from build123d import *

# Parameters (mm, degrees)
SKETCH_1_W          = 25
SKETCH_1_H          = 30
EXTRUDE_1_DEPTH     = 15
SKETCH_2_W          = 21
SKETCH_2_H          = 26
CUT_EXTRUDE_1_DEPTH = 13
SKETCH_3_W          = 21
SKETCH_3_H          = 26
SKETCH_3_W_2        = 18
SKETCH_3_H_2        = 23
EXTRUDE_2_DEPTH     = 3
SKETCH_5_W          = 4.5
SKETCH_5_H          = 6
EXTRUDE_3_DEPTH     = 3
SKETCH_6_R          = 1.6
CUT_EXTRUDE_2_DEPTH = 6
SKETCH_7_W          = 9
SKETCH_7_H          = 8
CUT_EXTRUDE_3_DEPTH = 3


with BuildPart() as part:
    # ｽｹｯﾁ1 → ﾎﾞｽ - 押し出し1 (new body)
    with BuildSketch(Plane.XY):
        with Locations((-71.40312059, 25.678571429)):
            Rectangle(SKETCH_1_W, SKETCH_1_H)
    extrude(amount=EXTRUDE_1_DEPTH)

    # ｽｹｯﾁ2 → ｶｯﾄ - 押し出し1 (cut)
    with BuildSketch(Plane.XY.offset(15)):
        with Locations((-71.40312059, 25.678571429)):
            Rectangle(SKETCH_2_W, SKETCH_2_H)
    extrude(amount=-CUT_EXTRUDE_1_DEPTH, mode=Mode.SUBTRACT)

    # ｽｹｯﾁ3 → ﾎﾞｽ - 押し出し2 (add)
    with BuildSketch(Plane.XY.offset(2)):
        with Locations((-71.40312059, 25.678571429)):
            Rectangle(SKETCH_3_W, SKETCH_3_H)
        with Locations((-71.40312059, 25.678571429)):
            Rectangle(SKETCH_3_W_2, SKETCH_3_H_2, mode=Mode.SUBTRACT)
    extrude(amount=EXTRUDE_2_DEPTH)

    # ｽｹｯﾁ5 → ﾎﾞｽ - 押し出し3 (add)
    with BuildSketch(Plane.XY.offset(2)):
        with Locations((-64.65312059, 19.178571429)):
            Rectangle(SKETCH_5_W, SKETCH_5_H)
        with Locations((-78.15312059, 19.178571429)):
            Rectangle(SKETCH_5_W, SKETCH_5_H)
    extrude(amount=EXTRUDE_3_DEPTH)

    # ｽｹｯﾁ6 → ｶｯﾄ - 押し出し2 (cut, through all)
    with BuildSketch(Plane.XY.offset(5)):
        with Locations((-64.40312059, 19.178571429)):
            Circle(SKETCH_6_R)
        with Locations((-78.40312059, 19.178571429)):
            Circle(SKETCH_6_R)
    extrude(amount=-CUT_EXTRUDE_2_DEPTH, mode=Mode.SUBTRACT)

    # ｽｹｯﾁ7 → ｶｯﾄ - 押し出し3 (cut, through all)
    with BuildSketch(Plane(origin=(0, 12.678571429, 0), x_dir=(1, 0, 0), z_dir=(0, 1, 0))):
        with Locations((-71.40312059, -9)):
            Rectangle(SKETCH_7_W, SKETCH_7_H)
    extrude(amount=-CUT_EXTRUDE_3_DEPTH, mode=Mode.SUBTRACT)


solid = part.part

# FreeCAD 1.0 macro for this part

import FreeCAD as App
import Part
import Sketcher


def add_polygon(sketch, points):
    """Adds a closed chain of lines whose ends are joined by coincident constraints."""
    first, n = sketch.GeometryCount, len(points)
    for a, b in zip(points, points[1:] + points[:1]):
        sketch.addGeometry(Part.LineSegment(App.Vector(*a, 0), App.Vector(*b, 0)), False)
    for i in range(n):
        sketch.addConstraint(Sketcher.Constraint("Coincident", first + i, 2, first + (i + 1) % n, 1))

doc = App.newDocument("Part")
body = doc.addObject("PartDesign::Body", "Body")

# Sketch on XY plane
sketch1 = doc.addObject("Sketcher::SketchObject", "Sketch")
body.addObject(sketch1)
sketch1.AttachmentSupport = (doc.XY_Plane, [""])
sketch1.MapMode = "FlatFace"
add_polygon(sketch1, [(-84, 41), (-84, 11), (-59, 11), (-59, 41)])  # lines 0-3
sketch1.addConstraint([
    Sketcher.Constraint("Vertical", 0),
    Sketcher.Constraint("Horizontal", 1),
    Sketcher.Constraint("Vertical", 2),
    Sketcher.Constraint("Horizontal", 3),
    Sketcher.Constraint("DistanceX", 1, 1, 1, 2, 25.0),
    Sketcher.Constraint("DistanceY", 0, 2, 0, 1, 30.0),
    Sketcher.Constraint("DistanceX", 0, 2, -1, 1, 83.903121),
    Sketcher.Constraint("DistanceY", -1, 1, 0, 2, 10.678571),
])
pad1 = doc.addObject("PartDesign::Pad", "Pad")
body.addObject(pad1)
pad1.Profile = sketch1
pad1.Length = 15

# Sketch on XY plane
sketch2 = doc.addObject("Sketcher::SketchObject", "Sketch001")
body.addObject(sketch2)
sketch2.AttachmentSupport = (doc.XY_Plane, [""])
sketch2.MapMode = "FlatFace"
sketch2.AttachmentOffset = App.Placement(App.Vector(0, 0, 15), App.Rotation())
add_polygon(sketch2, [(-82, 39), (-82, 13), (-61, 13), (-61, 39)])  # lines 0-3
sketch2.addConstraint([
    Sketcher.Constraint("Vertical", 0),
    Sketcher.Constraint("Horizontal", 1),
    Sketcher.Constraint("Vertical", 2),
    Sketcher.Constraint("Horizontal", 3),
    Sketcher.Constraint("DistanceX", 1, 1, 1, 2, 21.0),
    Sketcher.Constraint("DistanceY", 0, 2, 0, 1, 26.0),
    Sketcher.Constraint("DistanceX", 0, 2, -1, 1, 81.903121),
    Sketcher.Constraint("DistanceY", -1, 1, 0, 2, 12.678571),
])
pocket1 = doc.addObject("PartDesign::Pocket", "Pocket")
body.addObject(pocket1)
pocket1.Profile = sketch2
pocket1.Length = 13

# Sketch on XY plane
sketch3 = doc.addObject("Sketcher::SketchObject", "Sketch002")
body.addObject(sketch3)
sketch3.AttachmentSupport = (doc.XY_Plane, [""])
sketch3.MapMode = "FlatFace"
sketch3.AttachmentOffset = App.Placement(App.Vector(0, 0, 2), App.Rotation())
add_polygon(sketch3, [(-82, 39), (-82, 13), (-61, 13), (-61, 39)])  # lines 0-3
add_polygon(sketch3, [(-62, 14), (-80, 14), (-80, 37), (-62, 37)])  # lines 4-7
sketch3.addConstraint([
    Sketcher.Constraint("Vertical", 0),
    Sketcher.Constraint("Horizontal", 1),
    Sketcher.Constraint("Vertical", 2),
    Sketcher.Constraint("Horizontal", 3),
    Sketcher.Constraint("Horizontal", 4),
    Sketcher.Constraint("Vertical", 5),
    Sketcher.Constraint("Horizontal", 6),
    Sketcher.Constraint("Vertical", 7),
    Sketcher.Constraint("DistanceX", 1, 1, 1, 2, 21.0),
    Sketcher.Constraint("DistanceX", 4, 2, 4, 1, 18.0),
    Sketcher.Constraint("DistanceY", 0, 2, 0, 1, 26.0),
    Sketcher.Constraint("DistanceY", 5, 1, 5, 2, 23.0),
    Sketcher.Constraint("DistanceX", 0, 2, 4, 2, 1.5),
    Sketcher.Constraint("DistanceY", 0, 2, 4, 2, 1.5),
    Sketcher.Constraint("DistanceX", 0, 2, -1, 1, 81.903121),
    Sketcher.Constraint("DistanceY", -1, 1, 0, 2, 12.678571),
])
pad2 = doc.addObject("PartDesign::Pad", "Pad001")
body.addObject(pad2)
pad2.Profile = sketch3
pad2.Length = 3

# Sketch on XY plane
sketch4 = doc.addObject("Sketcher::SketchObject", "Sketch003")
body.addObject(sketch4)
sketch4.AttachmentSupport = (doc.XY_Plane, [""])
sketch4.MapMode = "FlatFace"
sketch4.AttachmentOffset = App.Placement(App.Vector(0, 0, 2), App.Rotation())
add_polygon(sketch4, [(-66.9, 22.2), (-66.9, 16.2), (-62.4, 16.2), (-62.4, 22.2)])  # lines 0-3
add_polygon(sketch4, [(-80.4, 22.2), (-80.4, 16.2), (-75.9, 16.2), (-75.9, 22.2)])  # lines 4-7
sketch4.addConstraint([
    Sketcher.Constraint("Vertical", 0),
    Sketcher.Constraint("Horizontal", 1),
    Sketcher.Constraint("Vertical", 2),
    Sketcher.Constraint("Horizontal", 3),
    Sketcher.Constraint("Vertical", 4),
    Sketcher.Constraint("Horizontal", 5),
    Sketcher.Constraint("Vertical", 6),
    Sketcher.Constraint("Horizontal", 7),
    Sketcher.Constraint("Horizontal", 1, 2, 4, 2),
    Sketcher.Constraint("Horizontal", 3, 2, 6, 2),
    Sketcher.Constraint("Equal", 3, 5),
    Sketcher.Constraint("DistanceY", 0, 2, 0, 1, 6.0),
    Sketcher.Constraint("DistanceX", 1, 1, 1, 2, 4.5),
    Sketcher.Constraint("DistanceX", 4, 2, 1, 2, 18.0),
    Sketcher.Constraint("DistanceX", 0, 2, -1, 1, 66.903121),
    Sketcher.Constraint("DistanceY", -1, 1, 0, 2, 16.178571),
])
pad3 = doc.addObject("PartDesign::Pad", "Pad002")
body.addObject(pad3)
pad3.Profile = sketch4
pad3.Length = 3

# Sketch on XY plane
sketch5 = doc.addObject("Sketcher::SketchObject", "Sketch004")
body.addObject(sketch5)
sketch5.AttachmentSupport = (doc.XY_Plane, [""])
sketch5.MapMode = "FlatFace"
sketch5.AttachmentOffset = App.Placement(App.Vector(0, 0, 5), App.Rotation())
sketch5.addGeometry([
    Part.Circle(App.Vector(-64.4, 19.2, 0), App.Vector(0, 0, 1), 1.6),
    Part.Circle(App.Vector(-78.4, 19.2, 0), App.Vector(0, 0, 1), 1.6),
], False)
sketch5.addConstraint([
    Sketcher.Constraint("Equal", 0, 1),
    Sketcher.Constraint("Horizontal", 0, 3, 1, 3),
    Sketcher.Constraint("Diameter", 0, 3.2),
    Sketcher.Constraint("DistanceX", 1, 3, 0, 3, 14.0),
    Sketcher.Constraint("DistanceX", 0, 3, -1, 1, 64.403121),
    Sketcher.Constraint("DistanceY", -1, 1, 0, 3, 19.178571),
])
pocket2 = doc.addObject("PartDesign::Pocket", "Pocket001")
body.addObject(pocket2)
pocket2.Profile = sketch5
pocket2.Type = "ThroughAll"

# Sketch on XZ plane
sketch6 = doc.addObject("Sketcher::SketchObject", "Sketch005")
body.addObject(sketch6)
sketch6.AttachmentSupport = (doc.XZ_Plane, [""])
sketch6.MapMode = "FlatFace"
sketch6.AttachmentOffset = App.Placement(App.Vector(0, 0, -12.678571), App.Rotation())
add_polygon(sketch6, [(-76, 5), (-76, 13), (-67, 13), (-67, 5)])  # lines 0-3
sketch6.addConstraint([
    Sketcher.Constraint("Vertical", 0),
    Sketcher.Constraint("Horizontal", 1),
    Sketcher.Constraint("Vertical", 2),
    Sketcher.Constraint("Horizontal", 3),
    Sketcher.Constraint("DistanceX", 1, 1, 1, 2, 9.0),
    Sketcher.Constraint("DistanceY", 0, 1, 0, 2, 8.0),
    Sketcher.Constraint("DistanceY", -1, 1, 0, 2, 13.0),
    Sketcher.Constraint("DistanceX", 0, 2, -1, 1, 75.903121),
])
pocket3 = doc.addObject("PartDesign::Pocket", "Pocket002")
body.addObject(pocket3)
pocket3.Profile = sketch6
pocket3.Type = "ThroughAll"
pocket3.Reversed = True

doc.recompute()
